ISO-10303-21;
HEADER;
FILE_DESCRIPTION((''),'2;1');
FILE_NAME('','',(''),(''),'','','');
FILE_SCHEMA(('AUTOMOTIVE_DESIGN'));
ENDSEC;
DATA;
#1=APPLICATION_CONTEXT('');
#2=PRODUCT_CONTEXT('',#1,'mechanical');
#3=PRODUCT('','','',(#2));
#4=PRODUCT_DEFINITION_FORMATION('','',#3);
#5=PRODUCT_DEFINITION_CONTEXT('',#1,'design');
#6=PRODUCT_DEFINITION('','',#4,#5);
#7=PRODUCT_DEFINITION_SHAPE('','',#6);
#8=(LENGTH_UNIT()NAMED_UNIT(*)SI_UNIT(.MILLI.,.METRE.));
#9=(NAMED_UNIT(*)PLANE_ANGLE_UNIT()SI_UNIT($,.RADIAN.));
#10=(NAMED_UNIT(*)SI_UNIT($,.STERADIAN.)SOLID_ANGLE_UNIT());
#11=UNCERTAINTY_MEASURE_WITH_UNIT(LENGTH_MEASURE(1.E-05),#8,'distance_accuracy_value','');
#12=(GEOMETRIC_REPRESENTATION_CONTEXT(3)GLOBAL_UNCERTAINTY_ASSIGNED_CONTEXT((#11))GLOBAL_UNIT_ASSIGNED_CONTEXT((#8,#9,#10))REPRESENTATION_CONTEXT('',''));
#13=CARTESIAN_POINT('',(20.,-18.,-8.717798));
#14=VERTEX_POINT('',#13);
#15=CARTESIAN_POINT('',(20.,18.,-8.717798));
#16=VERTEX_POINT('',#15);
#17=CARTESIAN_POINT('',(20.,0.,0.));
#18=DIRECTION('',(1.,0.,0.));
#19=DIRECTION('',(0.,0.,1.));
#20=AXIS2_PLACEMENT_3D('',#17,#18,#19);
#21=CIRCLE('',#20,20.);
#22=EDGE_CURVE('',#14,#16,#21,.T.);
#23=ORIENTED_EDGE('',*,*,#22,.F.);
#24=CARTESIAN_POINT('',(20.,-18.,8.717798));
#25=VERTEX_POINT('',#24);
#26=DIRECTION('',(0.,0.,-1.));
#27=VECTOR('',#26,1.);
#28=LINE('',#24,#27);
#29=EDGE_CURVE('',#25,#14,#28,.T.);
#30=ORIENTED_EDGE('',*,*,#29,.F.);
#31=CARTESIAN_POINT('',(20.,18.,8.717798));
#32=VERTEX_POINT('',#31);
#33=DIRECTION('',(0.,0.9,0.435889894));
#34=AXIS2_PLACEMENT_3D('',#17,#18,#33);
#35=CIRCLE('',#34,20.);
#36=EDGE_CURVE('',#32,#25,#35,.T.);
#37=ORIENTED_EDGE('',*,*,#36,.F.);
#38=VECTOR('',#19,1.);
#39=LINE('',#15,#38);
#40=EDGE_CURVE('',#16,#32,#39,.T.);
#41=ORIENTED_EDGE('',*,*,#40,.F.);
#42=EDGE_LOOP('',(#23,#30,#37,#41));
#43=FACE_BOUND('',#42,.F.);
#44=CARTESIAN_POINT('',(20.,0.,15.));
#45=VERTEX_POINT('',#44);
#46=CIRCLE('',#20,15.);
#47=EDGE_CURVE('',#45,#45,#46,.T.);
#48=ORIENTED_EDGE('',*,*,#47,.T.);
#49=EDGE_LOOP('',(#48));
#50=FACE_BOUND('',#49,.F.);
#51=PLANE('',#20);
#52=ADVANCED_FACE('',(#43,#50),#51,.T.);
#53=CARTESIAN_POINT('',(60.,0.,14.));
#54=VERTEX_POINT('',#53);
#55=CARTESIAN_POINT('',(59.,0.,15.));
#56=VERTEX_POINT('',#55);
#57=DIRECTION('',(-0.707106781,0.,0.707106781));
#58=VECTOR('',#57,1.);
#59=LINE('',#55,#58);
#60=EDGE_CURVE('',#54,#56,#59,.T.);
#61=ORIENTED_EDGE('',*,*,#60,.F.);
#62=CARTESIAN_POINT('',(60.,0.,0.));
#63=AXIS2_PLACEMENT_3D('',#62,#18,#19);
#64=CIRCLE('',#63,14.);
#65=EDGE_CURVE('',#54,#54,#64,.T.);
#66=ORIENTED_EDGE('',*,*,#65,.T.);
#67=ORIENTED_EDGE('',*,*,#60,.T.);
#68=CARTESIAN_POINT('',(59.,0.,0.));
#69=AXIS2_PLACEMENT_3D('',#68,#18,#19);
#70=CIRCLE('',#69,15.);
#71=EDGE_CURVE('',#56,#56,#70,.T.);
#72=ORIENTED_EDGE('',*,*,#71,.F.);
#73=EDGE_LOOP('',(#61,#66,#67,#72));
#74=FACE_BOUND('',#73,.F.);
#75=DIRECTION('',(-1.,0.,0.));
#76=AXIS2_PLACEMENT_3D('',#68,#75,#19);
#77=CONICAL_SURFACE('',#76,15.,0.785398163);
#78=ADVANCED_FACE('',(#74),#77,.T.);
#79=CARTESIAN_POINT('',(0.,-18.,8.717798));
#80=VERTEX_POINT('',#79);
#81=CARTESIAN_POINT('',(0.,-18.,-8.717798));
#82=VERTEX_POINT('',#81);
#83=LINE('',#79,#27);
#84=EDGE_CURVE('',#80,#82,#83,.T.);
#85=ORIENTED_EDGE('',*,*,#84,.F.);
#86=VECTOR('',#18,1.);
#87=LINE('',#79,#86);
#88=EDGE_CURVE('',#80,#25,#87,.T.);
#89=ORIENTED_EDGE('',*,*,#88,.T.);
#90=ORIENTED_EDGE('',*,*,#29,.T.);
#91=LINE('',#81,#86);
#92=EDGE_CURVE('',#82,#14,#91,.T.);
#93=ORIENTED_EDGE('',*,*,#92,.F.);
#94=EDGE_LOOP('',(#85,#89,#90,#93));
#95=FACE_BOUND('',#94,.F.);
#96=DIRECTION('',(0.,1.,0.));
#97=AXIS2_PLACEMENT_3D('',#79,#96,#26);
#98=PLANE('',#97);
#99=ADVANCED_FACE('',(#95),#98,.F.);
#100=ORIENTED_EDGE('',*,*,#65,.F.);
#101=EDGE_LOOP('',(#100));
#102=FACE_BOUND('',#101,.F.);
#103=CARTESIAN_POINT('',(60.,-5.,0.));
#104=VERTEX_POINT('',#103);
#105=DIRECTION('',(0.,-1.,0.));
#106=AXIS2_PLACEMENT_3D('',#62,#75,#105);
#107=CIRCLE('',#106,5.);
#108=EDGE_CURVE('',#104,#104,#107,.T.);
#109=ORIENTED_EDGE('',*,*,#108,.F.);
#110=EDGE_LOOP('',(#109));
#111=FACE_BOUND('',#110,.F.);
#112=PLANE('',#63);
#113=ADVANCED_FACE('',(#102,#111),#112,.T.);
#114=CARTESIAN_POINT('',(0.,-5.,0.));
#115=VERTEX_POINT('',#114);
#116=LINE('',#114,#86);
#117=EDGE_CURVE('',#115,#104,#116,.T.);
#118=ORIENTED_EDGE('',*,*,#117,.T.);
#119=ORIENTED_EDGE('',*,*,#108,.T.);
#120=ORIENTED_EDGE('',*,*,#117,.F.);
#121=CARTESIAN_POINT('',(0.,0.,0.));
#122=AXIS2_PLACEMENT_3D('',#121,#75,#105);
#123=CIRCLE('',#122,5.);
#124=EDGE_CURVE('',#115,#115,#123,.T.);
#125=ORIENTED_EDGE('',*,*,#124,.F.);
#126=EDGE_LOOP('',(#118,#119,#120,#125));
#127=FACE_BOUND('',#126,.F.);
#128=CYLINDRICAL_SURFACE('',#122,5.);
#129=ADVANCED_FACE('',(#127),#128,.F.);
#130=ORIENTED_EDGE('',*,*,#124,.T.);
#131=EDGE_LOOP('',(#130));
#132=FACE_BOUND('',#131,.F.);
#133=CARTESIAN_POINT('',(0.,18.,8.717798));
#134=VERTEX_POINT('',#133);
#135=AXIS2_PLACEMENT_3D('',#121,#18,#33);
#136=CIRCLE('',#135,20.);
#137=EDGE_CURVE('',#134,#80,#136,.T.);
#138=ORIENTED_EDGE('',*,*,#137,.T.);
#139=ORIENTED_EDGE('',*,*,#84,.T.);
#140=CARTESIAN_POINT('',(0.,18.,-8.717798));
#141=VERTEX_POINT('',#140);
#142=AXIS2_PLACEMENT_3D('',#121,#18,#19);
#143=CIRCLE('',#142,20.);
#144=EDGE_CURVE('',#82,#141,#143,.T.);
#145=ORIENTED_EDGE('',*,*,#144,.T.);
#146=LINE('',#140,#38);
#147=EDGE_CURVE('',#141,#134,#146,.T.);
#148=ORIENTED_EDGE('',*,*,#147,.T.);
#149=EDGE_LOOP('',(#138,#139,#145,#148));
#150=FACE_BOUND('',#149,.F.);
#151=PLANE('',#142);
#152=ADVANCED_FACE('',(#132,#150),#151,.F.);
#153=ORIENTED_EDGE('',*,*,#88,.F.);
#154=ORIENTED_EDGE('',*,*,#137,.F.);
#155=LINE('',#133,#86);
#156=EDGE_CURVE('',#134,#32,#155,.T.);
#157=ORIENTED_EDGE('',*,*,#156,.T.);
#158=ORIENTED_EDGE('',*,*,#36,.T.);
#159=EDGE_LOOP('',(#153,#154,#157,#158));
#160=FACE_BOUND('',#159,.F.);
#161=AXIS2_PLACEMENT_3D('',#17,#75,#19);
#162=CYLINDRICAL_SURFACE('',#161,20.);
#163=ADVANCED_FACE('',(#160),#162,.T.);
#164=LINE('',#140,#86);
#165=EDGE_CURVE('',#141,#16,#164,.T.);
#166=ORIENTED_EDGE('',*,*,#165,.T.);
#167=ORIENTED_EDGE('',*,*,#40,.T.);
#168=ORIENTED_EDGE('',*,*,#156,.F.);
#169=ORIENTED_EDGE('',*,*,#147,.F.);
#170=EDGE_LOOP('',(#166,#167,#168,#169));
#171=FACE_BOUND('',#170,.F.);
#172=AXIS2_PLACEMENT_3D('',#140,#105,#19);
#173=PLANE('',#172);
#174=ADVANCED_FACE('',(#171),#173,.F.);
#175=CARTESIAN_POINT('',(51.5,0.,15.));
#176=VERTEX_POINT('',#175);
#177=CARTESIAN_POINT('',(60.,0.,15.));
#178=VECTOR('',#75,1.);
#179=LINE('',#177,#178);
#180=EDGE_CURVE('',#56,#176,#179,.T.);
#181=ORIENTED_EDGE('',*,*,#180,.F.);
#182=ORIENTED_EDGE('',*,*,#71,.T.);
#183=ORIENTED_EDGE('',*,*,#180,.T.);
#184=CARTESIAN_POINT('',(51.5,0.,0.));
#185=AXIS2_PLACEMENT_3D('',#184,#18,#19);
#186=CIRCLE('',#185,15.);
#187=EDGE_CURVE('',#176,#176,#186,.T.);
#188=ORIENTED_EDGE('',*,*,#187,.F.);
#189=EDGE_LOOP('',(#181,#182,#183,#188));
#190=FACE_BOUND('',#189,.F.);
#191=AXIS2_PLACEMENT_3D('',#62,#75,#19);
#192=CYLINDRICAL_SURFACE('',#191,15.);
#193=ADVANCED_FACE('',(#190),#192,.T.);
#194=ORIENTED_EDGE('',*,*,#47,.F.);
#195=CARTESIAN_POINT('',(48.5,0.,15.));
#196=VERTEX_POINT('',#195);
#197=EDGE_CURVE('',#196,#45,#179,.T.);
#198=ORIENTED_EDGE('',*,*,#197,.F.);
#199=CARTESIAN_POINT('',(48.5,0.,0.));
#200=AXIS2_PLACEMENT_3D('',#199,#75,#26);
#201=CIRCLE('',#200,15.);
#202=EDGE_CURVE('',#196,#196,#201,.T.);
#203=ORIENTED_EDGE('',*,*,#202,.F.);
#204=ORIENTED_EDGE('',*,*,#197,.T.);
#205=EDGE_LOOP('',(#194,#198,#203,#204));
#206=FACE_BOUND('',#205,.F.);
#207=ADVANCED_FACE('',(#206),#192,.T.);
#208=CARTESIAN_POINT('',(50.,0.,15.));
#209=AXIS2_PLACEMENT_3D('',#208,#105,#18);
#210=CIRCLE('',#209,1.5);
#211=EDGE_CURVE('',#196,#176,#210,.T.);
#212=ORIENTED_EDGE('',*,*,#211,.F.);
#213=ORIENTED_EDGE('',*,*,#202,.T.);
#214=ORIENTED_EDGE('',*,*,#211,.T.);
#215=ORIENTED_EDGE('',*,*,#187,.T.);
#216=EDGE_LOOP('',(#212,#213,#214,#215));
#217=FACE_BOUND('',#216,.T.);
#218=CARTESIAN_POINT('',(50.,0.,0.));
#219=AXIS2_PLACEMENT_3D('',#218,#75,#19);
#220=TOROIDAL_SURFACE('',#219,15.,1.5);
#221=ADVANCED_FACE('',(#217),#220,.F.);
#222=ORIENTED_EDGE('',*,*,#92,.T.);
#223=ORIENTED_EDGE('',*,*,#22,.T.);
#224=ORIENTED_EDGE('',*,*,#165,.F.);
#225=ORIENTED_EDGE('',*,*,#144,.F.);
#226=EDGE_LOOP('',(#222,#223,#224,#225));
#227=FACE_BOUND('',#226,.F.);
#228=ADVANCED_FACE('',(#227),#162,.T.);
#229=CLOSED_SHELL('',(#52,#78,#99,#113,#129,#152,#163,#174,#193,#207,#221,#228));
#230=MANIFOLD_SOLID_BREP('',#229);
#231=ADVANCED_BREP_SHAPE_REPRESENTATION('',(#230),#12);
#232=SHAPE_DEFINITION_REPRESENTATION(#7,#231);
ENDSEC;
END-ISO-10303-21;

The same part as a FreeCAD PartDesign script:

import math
import FreeCAD as App
import Part
import Sketcher
from FreeCAD import Vector


def edges_at(feature, points):
    """Names of the edges that pass closest to the given points."""
    edges = feature.Shape.Edges
    near = lambda p: min(range(len(edges)), key=lambda i: edges[i].distToShape(Part.Vertex(*p))[0])
    return sorted({f"Edge{near(p) + 1}" for p in points})


def add_polygon(sketch, points):
    """Adds a closed chain of lines whose ends are joined by coincident constraints."""
    first, n = sketch.GeometryCount, len(points)
    for a, b in zip(points, points[1:] + points[:1]):
        sketch.addGeometry(Part.LineSegment(App.Vector(*a, 0), App.Vector(*b, 0)), False)
    for i in range(n):
        sketch.addConstraint(Sketcher.Constraint("Coincident", first + i, 2, first + (i + 1) % n, 1))

doc = App.newDocument("Part")
params = doc.addObject("Spreadsheet::Sheet", "Params")
for row, (alias, value) in enumerate([
    ("sketch1_width", "60 mm"),
    ("sketch1_width2", "40 mm"),
    ("sketch1_height", "15 mm"),
    ("revolution_angle", "360 deg"),
    ("chamfer_size", "1 mm"),
    ("sketch2_diameter", "3 mm"),
    ("groove_angle", "360 deg"),
    ("sketch3_radius", "20 mm"),
    ("sketch4_diameter", "10 mm"),
], start=1):
    params.set(f"A{row}", alias)
    params.set(f"B{row}", "=" + value)
    params.setAlias(f"B{row}", alias)

body = doc.addObject("PartDesign::Body", "Body")

# Sketch on XZ plane
sketch1 = body.newObject("Sketcher::SketchObject", "Sketch")
sketch1.AttachmentSupport = (doc.getObject("XZ_Plane"), [""])
sketch1.MapMode = "FlatFace"
add_polygon(sketch1, [(0, 20), (0, 0), (60, 0), (60, 15), (20, 15), (20, 20)])  # lines 0-5
sketch1.addConstraint([
    Sketcher.Constraint("Vertical", 0),
    Sketcher.Constraint("Horizontal", 1),
    Sketcher.Constraint("Vertical", 2),
    Sketcher.Constraint("Horizontal", 3),
    Sketcher.Constraint("Vertical", 4),
    Sketcher.Constraint("Horizontal", 5),
    Sketcher.Constraint("Coincident", 0, 2, -1, 1),
    Sketcher.Constraint("Equal", 5, 0),
    Sketcher.Constraint("DistanceX", 1, 1, 1, 2, 60.0),
    Sketcher.Constraint("DistanceX", 3, 2, 3, 1, 40.0),
    Sketcher.Constraint("DistanceY", 2, 1, 2, 2, 15.0),
])
sketch1.setExpression("Constraints[14]", "Params.sketch1_width")
sketch1.setExpression("Constraints[15]", "Params.sketch1_width2")
sketch1.setExpression("Constraints[16]", "Params.sketch1_height")
revolution = body.newObject("PartDesign::Revolution", "Revolution")
revolution.Profile = sketch1
revolution.ReferenceAxis = (sketch1, ["H_Axis"])
revolution.setExpression("Angle", "Params.revolution_angle")
doc.recompute()

chamfer = body.newObject("PartDesign::Chamfer", "Chamfer")
chamfer.Base = (revolution, edges_at(revolution, [(60, 0, -15)]))
chamfer.setExpression("Size", "Params.chamfer_size")

# Sketch on XZ plane
sketch2 = body.newObject("Sketcher::SketchObject", "Sketch001")
sketch2.AttachmentSupport = (doc.getObject("XZ_Plane"), [""])
sketch2.MapMode = "FlatFace"
sketch2.addGeometry(Part.Circle(Vector(50, 15, 0), Vector(0, 0, 1), 1.5), False)
sketch2.addConstraint([
    Sketcher.Constraint("Diameter", 0, 3.0),
    Sketcher.Constraint("DistanceX", -1, 1, 0, 3, 50.0),
    Sketcher.Constraint("DistanceY", -1, 1, 0, 3, 15.0),
])
sketch2.setExpression("Constraints[0]", "Params.sketch2_diameter")
groove = body.newObject("PartDesign::Groove", "Groove")
groove.Profile = sketch2
groove.ReferenceAxis = (sketch2, ["H_Axis"])
groove.setExpression("Angle", "Params.groove_angle")

# Sketch on YZ plane
sketch3 = body.newObject("Sketcher::SketchObject", "Sketch002")
sketch3.AttachmentSupport = (doc.getObject("YZ_Plane"), [""])
sketch3.MapMode = "FlatFace"
sketch3.addGeometry([
    Part.LineSegment(Vector(-18, 9, 0), Vector(-18, -9, 0)),  # 0
    Part.ArcOfCircle(Part.Circle(Vector(0, 0, 0), Vector(0, 0, 1), 20), math.radians(180), math.radians(206)),  # 1
    Part.ArcOfCircle(Part.Circle(Vector(0, 0, 0), Vector(0, 0, 1), 20), math.radians(154), math.radians(180)),  # 2
    Part.ArcOfCircle(Part.Circle(Vector(0, 0, 0), Vector(0, 0, 1), 20), math.radians(-26), math.radians(26)),  # 3
    Part.LineSegment(Vector(18, -9, 0), Vector(18, 9, 0)),  # 4
], False)
sketch3.addConstraint([
    Sketcher.Constraint("Coincident", 0, 2, 1, 2),
    Sketcher.Constraint("Tangent", 1, 1, 2, 2),
    Sketcher.Constraint("Coincident", 2, 1, 0, 1),
    Sketcher.Constraint("Coincident", 3, 1, 4, 1),
    Sketcher.Constraint("Coincident", 4, 2, 3, 2),
    Sketcher.Constraint("Vertical", 0),
    Sketcher.Constraint("Vertical", 4),
    Sketcher.Constraint("Coincident", 1, 3, -1, 1),
    Sketcher.Constraint("Coincident", 3, 3, -1, 1),
    Sketcher.Constraint("Equal", 1, 2),
    Sketcher.Constraint("Equal", 2, 3),
    Sketcher.Constraint("PointOnObject", 1, 1, -1),
    Sketcher.Constraint("Horizontal", 0, 2, 3, 1),
    Sketcher.Constraint("Radius", 1, 20.0),
    Sketcher.Constraint("DistanceX", 0, 2, -1, 1, 18.0),
])
sketch3.setExpression("Constraints[13]", "Params.sketch3_radius")
pocket1 = body.newObject("PartDesign::Pocket", "Pocket")
pocket1.Profile = sketch3
pocket1.Type = "ThroughAll"
pocket1.Reversed = True

# Sketch on YZ plane
sketch4 = body.newObject("Sketcher::SketchObject", "Sketch003")
sketch4.AttachmentSupport = (doc.getObject("YZ_Plane"), [""])
sketch4.MapMode = "FlatFace"
sketch4.addGeometry(Part.Circle(Vector(0, 0, 0), Vector(0, 0, 1), 5), False)
sketch4.addConstraint([
    Sketcher.Constraint("Coincident", 0, 3, -1, 1),
    Sketcher.Constraint("Diameter", 0, 10.0),
])
sketch4.setExpression("Constraints[1]", "Params.sketch4_diameter")
pocket2 = body.newObject("PartDesign::Pocket", "Pocket001")
pocket2.Profile = sketch4
pocket2.Type = "ThroughAll"
pocket2.Reversed = True

doc.recompute()
